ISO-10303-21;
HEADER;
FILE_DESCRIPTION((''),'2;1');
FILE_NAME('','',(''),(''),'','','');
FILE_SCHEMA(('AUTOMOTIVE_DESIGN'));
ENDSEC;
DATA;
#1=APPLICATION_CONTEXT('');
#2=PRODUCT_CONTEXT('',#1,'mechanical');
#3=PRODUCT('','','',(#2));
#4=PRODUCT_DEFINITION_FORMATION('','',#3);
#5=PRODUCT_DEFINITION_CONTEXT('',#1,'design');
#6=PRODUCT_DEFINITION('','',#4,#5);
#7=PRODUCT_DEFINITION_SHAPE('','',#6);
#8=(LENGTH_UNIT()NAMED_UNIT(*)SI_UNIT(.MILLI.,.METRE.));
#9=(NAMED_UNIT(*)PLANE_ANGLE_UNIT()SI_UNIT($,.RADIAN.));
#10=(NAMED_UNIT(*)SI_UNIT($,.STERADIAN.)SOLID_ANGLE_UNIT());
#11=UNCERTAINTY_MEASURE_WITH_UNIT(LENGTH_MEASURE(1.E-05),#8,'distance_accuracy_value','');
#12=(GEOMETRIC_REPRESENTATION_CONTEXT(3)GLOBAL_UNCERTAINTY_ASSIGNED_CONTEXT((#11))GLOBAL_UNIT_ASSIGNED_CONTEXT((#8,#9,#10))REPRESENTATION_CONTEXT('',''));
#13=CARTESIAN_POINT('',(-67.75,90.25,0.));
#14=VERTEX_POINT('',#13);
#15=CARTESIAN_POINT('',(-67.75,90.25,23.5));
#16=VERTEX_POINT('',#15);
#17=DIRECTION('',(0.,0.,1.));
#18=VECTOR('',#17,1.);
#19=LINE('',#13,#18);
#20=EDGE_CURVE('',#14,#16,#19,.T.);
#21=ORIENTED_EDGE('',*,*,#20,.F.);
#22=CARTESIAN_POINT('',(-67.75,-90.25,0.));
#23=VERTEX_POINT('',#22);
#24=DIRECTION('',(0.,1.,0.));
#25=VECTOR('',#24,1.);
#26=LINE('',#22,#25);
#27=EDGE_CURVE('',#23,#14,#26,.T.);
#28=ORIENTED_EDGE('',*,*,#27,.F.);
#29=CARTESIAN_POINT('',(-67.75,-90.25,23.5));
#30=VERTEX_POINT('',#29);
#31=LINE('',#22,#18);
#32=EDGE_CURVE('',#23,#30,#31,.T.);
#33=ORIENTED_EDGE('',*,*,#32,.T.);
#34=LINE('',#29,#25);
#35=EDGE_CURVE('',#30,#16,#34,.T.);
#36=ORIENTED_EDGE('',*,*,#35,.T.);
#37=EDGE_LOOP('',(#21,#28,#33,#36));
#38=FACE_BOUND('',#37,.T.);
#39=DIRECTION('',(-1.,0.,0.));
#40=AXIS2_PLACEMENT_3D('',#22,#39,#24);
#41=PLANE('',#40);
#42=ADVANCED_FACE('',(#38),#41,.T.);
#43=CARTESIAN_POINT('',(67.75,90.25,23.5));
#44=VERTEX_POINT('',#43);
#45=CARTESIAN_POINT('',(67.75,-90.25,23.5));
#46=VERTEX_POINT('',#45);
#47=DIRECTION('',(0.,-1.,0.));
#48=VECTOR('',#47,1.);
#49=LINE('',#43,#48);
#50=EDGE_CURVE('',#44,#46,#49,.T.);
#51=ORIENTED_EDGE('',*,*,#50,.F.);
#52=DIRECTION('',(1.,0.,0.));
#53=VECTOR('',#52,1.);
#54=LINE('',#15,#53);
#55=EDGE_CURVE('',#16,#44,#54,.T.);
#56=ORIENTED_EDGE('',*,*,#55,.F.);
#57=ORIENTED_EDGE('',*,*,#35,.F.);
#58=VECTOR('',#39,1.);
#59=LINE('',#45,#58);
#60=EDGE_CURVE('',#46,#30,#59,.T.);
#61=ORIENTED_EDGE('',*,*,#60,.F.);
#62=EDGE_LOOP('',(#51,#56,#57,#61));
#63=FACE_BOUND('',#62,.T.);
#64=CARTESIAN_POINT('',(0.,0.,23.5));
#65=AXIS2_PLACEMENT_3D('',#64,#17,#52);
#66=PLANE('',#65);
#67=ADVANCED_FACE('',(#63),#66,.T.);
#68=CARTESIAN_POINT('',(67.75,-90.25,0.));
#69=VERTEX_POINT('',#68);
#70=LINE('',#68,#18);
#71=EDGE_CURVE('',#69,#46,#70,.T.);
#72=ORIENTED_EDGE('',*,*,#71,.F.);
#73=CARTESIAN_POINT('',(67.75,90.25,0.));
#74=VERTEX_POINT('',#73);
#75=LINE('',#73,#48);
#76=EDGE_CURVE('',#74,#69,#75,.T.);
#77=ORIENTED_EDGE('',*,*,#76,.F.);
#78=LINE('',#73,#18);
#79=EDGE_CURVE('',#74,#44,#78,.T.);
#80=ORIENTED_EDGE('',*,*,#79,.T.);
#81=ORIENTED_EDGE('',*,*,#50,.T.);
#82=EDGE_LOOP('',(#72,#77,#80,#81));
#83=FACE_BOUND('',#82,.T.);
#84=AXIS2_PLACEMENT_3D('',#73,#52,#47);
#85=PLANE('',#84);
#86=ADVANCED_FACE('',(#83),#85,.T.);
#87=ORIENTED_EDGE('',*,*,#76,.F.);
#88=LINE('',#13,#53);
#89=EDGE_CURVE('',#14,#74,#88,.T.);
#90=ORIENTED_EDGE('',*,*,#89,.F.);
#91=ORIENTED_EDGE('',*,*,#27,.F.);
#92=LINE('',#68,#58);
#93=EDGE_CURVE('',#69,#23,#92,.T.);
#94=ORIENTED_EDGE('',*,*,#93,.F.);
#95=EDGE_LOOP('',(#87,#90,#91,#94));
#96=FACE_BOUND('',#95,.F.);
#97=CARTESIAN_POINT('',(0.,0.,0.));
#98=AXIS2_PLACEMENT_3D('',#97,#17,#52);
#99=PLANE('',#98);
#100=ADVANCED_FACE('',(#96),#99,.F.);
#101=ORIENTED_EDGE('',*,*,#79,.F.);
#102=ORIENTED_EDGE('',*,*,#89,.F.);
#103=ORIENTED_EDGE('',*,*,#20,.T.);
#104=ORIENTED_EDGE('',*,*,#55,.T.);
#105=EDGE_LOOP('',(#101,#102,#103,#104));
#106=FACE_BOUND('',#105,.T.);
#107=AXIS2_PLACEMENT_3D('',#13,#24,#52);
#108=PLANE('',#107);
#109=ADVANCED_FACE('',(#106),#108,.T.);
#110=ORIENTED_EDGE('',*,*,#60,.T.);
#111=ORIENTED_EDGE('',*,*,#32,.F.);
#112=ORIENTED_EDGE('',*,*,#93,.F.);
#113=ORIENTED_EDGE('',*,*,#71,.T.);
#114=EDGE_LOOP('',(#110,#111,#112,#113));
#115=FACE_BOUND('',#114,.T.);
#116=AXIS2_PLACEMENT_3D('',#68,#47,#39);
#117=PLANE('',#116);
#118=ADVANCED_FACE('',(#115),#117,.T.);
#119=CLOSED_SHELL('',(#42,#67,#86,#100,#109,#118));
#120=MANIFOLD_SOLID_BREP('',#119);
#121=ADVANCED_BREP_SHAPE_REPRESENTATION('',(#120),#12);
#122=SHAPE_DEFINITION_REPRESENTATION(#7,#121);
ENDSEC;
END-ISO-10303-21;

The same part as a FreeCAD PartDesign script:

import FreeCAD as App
import Part
import Sketcher
Q = App.Units.Quantity

doc = App.newDocument("Part")
body = doc.addObject("PartDesign::Body", "Body")

# Sketch on XY plane
sketch1 = body.newObject("Sketcher::SketchObject", "Sketch")
sketch1.AttachmentSupport = (doc.getObject("XY_Plane"), [""])
sketch1.MapMode = "FlatFace"
sketch1.addGeometry([
    Part.LineSegment(App.Vector(67.75, 90.25, 0), App.Vector(-67.75, 90.25, 0)),
    Part.LineSegment(App.Vector(-67.75, 90.25, 0), App.Vector(-67.75, -90.25, 0)),
    Part.LineSegment(App.Vector(-67.75, -90.25, 0), App.Vector(67.75, -90.25, 0)),
    Part.LineSegment(App.Vector(67.75, -90.25, 0), App.Vector(67.75, 90.25, 0)),
], False)
sketch1.addConstraint([
    Sketcher.Constraint("Coincident", 0, 2, 1, 1),
    Sketcher.Constraint("Coincident", 1, 2, 2, 1),
    Sketcher.Constraint("Coincident", 2, 2, 3, 1),
    Sketcher.Constraint("Coincident", 3, 2, 0, 1),
    Sketcher.Constraint("Horizontal", 0),
    Sketcher.Constraint("Vertical", 1),
    Sketcher.Constraint("Horizontal", 2),
    Sketcher.Constraint("Vertical", 3),
    Sketcher.Constraint("Symmetric", 0, 2, 2, 2, -1, 1),
    Sketcher.Constraint("DistanceX", 0, 2, 0, 1, Q("135.5 mm")),
    Sketcher.Constraint("DistanceY", 1, 2, 1, 1, Q("180.5 mm")),
])
pad1 = body.newObject("PartDesign::Pad", "Pad")
pad1.Profile = sketch1
pad1.Length = 23.5

doc.recompute()
